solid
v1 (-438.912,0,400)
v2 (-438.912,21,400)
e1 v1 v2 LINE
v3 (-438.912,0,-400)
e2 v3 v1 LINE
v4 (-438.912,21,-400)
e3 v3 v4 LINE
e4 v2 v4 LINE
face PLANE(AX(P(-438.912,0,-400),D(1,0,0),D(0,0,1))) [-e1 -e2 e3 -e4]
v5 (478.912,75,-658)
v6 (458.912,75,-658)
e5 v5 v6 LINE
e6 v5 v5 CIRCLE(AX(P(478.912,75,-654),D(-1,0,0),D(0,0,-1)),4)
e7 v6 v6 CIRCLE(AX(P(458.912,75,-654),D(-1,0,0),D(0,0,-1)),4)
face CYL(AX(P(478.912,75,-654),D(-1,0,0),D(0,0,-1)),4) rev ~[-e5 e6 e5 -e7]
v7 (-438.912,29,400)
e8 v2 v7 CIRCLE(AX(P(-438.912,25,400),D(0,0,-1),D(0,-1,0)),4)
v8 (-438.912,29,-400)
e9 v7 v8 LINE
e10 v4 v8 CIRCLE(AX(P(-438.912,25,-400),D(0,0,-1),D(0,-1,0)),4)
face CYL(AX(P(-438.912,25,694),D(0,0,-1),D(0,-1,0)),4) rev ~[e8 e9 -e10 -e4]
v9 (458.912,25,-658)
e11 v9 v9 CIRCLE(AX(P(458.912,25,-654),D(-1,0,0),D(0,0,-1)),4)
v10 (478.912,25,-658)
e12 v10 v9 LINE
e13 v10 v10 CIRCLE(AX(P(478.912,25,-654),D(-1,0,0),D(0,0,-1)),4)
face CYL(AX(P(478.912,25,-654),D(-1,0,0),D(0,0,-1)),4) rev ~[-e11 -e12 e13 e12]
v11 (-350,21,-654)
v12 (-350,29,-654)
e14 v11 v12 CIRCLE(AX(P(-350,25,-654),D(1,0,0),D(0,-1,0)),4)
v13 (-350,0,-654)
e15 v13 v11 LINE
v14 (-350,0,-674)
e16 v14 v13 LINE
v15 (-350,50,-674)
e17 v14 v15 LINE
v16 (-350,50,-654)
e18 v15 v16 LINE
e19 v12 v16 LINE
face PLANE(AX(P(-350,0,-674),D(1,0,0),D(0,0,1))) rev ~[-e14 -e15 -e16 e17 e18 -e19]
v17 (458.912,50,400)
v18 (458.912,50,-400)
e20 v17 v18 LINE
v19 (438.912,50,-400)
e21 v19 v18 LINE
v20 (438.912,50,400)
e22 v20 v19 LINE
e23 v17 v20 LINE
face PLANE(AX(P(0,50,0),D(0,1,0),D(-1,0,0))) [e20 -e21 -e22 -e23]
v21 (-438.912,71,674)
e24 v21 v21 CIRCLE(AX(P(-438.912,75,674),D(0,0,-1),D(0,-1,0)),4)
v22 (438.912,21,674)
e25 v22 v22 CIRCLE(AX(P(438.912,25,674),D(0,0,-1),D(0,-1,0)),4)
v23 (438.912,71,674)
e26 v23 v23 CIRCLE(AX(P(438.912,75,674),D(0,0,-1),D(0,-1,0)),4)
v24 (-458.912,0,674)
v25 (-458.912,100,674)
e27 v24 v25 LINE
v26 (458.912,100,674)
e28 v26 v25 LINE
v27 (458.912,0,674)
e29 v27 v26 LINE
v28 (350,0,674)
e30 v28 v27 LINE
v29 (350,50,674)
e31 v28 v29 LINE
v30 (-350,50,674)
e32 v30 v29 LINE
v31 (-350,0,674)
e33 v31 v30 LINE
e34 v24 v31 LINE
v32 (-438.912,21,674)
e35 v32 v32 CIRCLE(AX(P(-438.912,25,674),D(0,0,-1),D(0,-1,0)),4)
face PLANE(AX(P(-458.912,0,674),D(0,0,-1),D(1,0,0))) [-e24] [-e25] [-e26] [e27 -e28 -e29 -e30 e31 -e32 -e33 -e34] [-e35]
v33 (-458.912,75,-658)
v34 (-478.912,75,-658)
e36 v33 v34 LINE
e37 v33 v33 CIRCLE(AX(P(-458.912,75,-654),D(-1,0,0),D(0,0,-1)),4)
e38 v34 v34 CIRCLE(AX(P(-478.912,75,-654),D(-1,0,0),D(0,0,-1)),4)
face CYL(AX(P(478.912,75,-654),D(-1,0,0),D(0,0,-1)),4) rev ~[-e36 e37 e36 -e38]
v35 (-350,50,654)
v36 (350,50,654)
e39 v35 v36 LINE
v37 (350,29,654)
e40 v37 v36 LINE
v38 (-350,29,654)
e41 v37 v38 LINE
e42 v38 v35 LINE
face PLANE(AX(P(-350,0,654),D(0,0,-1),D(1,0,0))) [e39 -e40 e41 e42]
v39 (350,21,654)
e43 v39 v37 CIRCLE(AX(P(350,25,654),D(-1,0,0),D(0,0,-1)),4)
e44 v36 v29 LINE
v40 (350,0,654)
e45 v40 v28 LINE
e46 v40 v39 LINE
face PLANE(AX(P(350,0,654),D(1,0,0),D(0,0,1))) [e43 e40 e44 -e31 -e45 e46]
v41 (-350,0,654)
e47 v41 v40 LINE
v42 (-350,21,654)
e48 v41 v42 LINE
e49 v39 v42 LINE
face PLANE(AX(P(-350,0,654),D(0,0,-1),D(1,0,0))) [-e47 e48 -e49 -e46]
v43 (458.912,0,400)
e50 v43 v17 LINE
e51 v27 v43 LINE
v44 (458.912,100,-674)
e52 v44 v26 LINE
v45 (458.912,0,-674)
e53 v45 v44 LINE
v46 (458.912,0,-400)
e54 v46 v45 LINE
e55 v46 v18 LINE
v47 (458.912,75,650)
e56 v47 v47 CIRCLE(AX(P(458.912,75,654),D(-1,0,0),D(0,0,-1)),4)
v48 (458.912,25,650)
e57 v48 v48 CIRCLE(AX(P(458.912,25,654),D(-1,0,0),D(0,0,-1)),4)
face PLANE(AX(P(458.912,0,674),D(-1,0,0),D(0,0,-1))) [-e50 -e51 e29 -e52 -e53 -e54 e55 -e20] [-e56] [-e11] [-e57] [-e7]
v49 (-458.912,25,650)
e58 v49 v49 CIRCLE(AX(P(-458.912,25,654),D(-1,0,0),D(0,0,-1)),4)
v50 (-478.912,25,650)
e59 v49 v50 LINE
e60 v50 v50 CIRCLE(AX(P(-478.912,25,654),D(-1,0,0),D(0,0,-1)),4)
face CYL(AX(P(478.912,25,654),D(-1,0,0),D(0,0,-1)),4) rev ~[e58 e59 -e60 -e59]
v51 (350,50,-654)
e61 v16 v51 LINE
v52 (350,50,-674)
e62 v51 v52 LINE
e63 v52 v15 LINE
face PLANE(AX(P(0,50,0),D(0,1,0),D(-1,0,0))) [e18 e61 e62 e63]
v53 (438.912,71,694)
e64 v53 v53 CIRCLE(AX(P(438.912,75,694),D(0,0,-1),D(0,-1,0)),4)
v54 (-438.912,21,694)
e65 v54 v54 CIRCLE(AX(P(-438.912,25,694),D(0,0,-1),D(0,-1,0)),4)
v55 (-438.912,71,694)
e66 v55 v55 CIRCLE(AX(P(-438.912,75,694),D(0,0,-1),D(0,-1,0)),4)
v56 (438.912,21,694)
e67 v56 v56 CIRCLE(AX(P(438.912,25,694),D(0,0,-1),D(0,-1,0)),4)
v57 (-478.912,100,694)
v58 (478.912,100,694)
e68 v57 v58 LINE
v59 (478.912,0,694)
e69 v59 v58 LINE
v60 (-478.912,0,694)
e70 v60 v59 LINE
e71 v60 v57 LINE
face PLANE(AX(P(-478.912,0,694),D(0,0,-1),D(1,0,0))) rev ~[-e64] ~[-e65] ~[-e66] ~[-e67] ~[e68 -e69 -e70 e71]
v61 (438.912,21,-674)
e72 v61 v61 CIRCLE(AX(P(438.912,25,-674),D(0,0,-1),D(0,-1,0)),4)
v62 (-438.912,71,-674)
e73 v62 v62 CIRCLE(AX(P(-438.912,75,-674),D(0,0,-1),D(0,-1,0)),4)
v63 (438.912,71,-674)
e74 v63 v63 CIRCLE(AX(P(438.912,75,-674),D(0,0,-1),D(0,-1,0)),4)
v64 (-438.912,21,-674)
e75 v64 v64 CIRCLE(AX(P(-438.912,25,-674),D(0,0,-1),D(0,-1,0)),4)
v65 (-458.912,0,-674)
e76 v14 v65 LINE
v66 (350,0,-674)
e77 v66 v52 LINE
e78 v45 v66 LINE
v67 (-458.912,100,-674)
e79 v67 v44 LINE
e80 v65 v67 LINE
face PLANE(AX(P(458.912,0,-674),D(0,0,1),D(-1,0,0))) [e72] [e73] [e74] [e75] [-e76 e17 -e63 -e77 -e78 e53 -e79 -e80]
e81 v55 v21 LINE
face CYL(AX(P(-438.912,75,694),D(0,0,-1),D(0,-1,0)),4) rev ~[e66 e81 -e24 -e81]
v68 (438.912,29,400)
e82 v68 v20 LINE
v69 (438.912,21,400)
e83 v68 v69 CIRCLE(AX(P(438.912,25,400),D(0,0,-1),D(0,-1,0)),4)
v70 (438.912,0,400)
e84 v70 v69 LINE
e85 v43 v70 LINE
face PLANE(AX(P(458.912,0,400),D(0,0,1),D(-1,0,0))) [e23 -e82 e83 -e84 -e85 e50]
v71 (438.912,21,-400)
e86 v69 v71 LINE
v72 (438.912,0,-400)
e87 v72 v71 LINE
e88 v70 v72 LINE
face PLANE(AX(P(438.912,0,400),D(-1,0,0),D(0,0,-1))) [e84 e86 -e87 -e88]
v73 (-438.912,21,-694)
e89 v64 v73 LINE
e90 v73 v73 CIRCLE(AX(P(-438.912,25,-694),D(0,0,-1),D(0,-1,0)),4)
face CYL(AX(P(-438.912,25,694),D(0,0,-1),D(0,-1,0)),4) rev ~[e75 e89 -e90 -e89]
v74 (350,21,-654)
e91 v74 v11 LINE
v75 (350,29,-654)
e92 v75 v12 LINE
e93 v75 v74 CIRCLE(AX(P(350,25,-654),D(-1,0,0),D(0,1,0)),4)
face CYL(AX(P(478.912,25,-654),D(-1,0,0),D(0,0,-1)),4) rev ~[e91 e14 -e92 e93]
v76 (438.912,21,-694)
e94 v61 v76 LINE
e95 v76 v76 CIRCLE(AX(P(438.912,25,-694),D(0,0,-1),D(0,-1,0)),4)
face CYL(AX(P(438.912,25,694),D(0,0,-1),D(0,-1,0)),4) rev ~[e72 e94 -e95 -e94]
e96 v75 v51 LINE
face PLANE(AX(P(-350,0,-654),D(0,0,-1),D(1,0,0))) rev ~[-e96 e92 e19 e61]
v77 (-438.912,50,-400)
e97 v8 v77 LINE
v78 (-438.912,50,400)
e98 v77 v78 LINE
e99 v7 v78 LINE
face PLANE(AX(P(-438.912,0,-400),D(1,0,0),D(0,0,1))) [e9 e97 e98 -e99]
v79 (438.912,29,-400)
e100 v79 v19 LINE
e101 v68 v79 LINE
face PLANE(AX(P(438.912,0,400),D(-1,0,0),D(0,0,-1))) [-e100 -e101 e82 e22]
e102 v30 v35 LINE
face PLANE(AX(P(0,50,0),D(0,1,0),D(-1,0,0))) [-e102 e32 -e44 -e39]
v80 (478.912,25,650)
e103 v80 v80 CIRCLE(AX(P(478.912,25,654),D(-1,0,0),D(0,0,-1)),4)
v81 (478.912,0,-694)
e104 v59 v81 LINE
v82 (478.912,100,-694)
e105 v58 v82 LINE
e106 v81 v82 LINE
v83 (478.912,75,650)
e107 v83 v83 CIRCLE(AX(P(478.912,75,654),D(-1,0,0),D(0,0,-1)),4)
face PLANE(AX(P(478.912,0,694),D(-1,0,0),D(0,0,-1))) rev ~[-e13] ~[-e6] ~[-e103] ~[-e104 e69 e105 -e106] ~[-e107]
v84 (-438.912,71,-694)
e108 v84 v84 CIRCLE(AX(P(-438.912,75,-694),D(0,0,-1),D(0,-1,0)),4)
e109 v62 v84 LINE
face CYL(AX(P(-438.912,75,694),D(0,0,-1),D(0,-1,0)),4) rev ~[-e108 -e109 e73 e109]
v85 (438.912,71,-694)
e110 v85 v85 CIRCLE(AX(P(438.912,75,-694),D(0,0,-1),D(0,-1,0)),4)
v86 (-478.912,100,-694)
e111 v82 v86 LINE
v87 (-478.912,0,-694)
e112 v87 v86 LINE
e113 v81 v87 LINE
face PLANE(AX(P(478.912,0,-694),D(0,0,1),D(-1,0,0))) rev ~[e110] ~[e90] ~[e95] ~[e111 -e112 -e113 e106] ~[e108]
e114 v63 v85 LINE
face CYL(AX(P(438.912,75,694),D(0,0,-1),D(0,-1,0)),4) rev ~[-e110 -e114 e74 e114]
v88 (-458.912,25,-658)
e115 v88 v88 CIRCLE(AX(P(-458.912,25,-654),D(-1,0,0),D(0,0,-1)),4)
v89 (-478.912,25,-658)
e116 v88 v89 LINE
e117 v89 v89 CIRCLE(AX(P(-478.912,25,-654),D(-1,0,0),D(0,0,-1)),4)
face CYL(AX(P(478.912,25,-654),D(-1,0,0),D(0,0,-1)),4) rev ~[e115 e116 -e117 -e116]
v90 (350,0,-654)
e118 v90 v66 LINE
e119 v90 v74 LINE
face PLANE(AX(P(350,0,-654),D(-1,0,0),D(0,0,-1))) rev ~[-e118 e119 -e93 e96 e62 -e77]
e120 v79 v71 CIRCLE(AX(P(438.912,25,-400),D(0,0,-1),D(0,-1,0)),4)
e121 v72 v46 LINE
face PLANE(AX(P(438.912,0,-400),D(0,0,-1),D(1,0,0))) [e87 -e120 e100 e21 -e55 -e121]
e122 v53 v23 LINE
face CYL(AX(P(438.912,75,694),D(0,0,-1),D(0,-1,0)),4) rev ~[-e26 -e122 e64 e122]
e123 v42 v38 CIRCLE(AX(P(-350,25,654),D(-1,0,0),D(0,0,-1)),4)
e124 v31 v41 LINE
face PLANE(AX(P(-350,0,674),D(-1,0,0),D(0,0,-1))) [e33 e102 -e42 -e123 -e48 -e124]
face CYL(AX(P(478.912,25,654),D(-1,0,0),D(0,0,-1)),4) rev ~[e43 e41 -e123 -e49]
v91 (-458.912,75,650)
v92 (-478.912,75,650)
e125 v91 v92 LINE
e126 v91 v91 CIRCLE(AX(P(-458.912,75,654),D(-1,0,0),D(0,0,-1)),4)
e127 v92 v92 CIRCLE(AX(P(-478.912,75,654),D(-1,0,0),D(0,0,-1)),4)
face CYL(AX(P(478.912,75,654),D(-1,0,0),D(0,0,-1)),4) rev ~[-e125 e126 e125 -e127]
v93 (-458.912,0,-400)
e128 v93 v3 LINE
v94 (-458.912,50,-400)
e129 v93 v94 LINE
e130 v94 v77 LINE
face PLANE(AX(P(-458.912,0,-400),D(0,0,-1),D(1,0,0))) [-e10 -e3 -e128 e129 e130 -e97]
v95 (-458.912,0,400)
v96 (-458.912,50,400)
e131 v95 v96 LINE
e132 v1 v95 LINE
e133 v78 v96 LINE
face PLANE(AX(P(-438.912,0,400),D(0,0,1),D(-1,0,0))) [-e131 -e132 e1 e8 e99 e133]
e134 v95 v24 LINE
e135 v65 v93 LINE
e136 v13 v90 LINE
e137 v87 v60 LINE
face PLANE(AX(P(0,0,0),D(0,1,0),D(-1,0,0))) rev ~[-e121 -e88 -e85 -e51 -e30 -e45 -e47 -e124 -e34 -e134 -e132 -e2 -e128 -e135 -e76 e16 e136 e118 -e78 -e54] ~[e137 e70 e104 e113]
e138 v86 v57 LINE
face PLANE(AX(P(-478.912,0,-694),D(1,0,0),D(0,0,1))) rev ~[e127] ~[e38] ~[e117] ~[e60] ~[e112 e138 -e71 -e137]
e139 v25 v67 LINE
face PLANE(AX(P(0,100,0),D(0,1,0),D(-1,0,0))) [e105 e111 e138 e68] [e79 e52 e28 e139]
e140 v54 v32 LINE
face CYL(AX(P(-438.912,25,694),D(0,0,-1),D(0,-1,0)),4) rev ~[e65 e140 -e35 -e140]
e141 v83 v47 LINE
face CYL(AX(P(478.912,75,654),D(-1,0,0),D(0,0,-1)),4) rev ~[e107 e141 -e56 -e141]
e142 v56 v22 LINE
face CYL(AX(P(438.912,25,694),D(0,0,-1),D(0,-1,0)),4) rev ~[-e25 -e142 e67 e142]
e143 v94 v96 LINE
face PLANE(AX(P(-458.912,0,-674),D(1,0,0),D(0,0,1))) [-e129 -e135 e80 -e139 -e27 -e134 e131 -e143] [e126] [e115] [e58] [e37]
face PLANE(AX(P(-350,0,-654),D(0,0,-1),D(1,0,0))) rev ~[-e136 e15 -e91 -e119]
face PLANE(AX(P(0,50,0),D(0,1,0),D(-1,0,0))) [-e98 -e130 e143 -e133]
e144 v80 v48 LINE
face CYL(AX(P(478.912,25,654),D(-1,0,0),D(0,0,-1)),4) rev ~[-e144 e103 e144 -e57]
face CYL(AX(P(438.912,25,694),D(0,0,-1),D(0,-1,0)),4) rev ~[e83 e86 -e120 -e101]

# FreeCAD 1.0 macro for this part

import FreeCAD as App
import Part
import Sketcher

V = App.Vector
Q = App.Units.Quantity


def add_polygon(sketch, points):
    """Adds a closed chain of lines whose ends are joined by coincident constraints."""
    first, n = sketch.GeometryCount, len(points)
    for a, b in zip(points, points[1:] + points[:1]):
        sketch.addGeometry(Part.LineSegment(App.Vector(*a, 0), App.Vector(*b, 0)), False)
    for i in range(n):
        sketch.addConstraint(Sketcher.Constraint("Coincident", first + i, 2, first + (i + 1) % n, 1))

doc = App.newDocument("Part")
body = doc.addObject("PartDesign::Body", "Body")
body.AllowCompound = True

# Sketch on XZ plane
sketch1 = body.newObject("Sketcher::SketchObject", "Sketch")
sketch1.AttachmentSupport = (doc.getObject("XZ_Plane"), [""])
sketch1.MapMode = "FlatFace"
add_polygon(sketch1, [(-350, 654), (-350, 674), (350, 674), (350, 654)])  # lines 0-3
add_polygon(sketch1, [(-458.912, -400), (-458.912, 400), (-438.912, 400), (-438.912, -400)])  # lines 4-7
add_polygon(sketch1, [(438.912, 400), (458.912, 400), (458.912, -400), (438.912, -400)])  # lines 8-11
add_polygon(sketch1, [(350, -674), (-350, -674), (-350, -654), (350, -654)])  # lines 12-15
sketch1.addConstraint(Sketcher.Constraint("Vertical", 0))
sketch1.addConstraint(Sketcher.Constraint("Horizontal", 1))
sketch1.addConstraint(Sketcher.Constraint("Vertical", 2))
sketch1.addConstraint(Sketcher.Constraint("Horizontal", 3))
sketch1.addConstraint(Sketcher.Constraint("Vertical", 4))
sketch1.addConstraint(Sketcher.Constraint("Horizontal", 5))
sketch1.addConstraint(Sketcher.Constraint("Vertical", 6))
sketch1.addConstraint(Sketcher.Constraint("Horizontal", 7))
sketch1.addConstraint(Sketcher.Constraint("Horizontal", 8))
sketch1.addConstraint(Sketcher.Constraint("Vertical", 9))
sketch1.addConstraint(Sketcher.Constraint("Horizontal", 10))
sketch1.addConstraint(Sketcher.Constraint("Vertical", 11))
sketch1.addConstraint(Sketcher.Constraint("Horizontal", 12))
sketch1.addConstraint(Sketcher.Constraint("Vertical", 13))
sketch1.addConstraint(Sketcher.Constraint("Horizontal", 14))
sketch1.addConstraint(Sketcher.Constraint("Vertical", 15))
sketch1.addConstraint(Sketcher.Constraint("Symmetric", 7, 2, 8, 2, -1, 1))
sketch1.addConstraint(Sketcher.Constraint("Symmetric", 5, 2, 10, 2, -1, 1))
sketch1.addConstraint(Sketcher.Constraint("Symmetric", 1, 2, 12, 2, -1, 1))
sketch1.addConstraint(Sketcher.Constraint("Symmetric", 3, 2, 14, 2, -1, 1))
sketch1.addConstraint(Sketcher.Constraint("Horizontal", 5, 2, 8, 2))
sketch1.addConstraint(Sketcher.Constraint("Vertical", 3, 2, 12, 2))
sketch1.addConstraint(Sketcher.Constraint("Equal", 10, 0))
sketch1.addConstraint(Sketcher.Constraint("DistanceX", 1, 1, 1, 2, Q("700 mm")))
sketch1.addConstraint(Sketcher.Constraint("DistanceX", 5, 1, 5, 2, Q("20 mm")))
sketch1.addConstraint(Sketcher.Constraint("DistanceY", 4, 1, 4, 2, Q("800 mm")))
sketch1.addConstraint(Sketcher.Constraint("DistanceY", -1, 1, 0, 2, Q("674 mm")))
sketch1.addConstraint(Sketcher.Constraint("DistanceX", 7, 2, 9, 2, Q("917.824 mm")))
pad1 = body.newObject("PartDesign::Pad", "Pad")
pad1.Profile = sketch1
pad1.Length = 50
pad1.Reversed = True

# Sketch on XZ plane
sketch2 = body.newObject("Sketcher::SketchObject", "Sketch001")
sketch2.AttachmentSupport = (doc.getObject("XZ_Plane"), [""])
sketch2.MapMode = "FlatFace"
add_polygon(sketch2, [(-478.912, -694), (-478.912, 694), (478.912, 694), (478.912, -694)])  # lines 0-3
add_polygon(sketch2, [(458.912, 674), (-458.912, 674), (-458.912, -674), (458.912, -674)])  # lines 4-7
sketch2.addConstraint(Sketcher.Constraint("Vertical", 0))
sketch2.addConstraint(Sketcher.Constraint("Horizontal", 1))
sketch2.addConstraint(Sketcher.Constraint("Vertical", 2))
sketch2.addConstraint(Sketcher.Constraint("Horizontal", 3))
sketch2.addConstraint(Sketcher.Constraint("Horizontal", 4))
sketch2.addConstraint(Sketcher.Constraint("Vertical", 5))
sketch2.addConstraint(Sketcher.Constraint("Horizontal", 6))
sketch2.addConstraint(Sketcher.Constraint("Vertical", 7))
sketch2.addConstraint(Sketcher.Constraint("Symmetric", 0, 2, 2, 2, -1, 1))
sketch2.addConstraint(Sketcher.Constraint("Symmetric", 4, 2, 6, 2, -1, 1))
sketch2.addConstraint(Sketcher.Constraint("DistanceY", 0, 1, 0, 2, Q("1388 mm")))
sketch2.addConstraint(Sketcher.Constraint("DistanceY", 5, 2, 5, 1, Q("1348 mm")))
sketch2.addConstraint(Sketcher.Constraint("DistanceX", 0, 2, 4, 2, Q("20 mm")))
sketch2.addConstraint(Sketcher.Constraint("DistanceX", 1, 1, 1, 2, Q("957.824 mm")))
pad2 = body.newObject("PartDesign::Pad", "Pad001")
pad2.Profile = sketch2
pad2.Length = 100
pad2.Reversed = True

# Sketch on YZ plane
sketch3 = body.newObject("Sketcher::SketchObject", "Sketch002")
sketch3.AttachmentSupport = (doc.getObject("YZ_Plane"), [""])
sketch3.MapMode = "FlatFace"
sketch3.AttachmentOffset = App.Placement(V(0, 0, 478.912), App.Rotation())
sketch3.addGeometry(Part.Circle(V(75, 654, 0), V(0, 0, 1), 4), False)
sketch3.addConstraint(Sketcher.Constraint("Diameter", 0, Q("8 mm")))
sketch3.addConstraint(Sketcher.Constraint("DistanceX", -1, 1, 0, 3, Q("75 mm")))
sketch3.addConstraint(Sketcher.Constraint("DistanceY", -1, 1, 0, 3, Q("654 mm")))
doc.recompute()
hole = body.newObject("PartDesign::Hole", "Hole")
hole.Profile = sketch3
hole.ThreadType = "None"
hole.Diameter = 8
hole.DepthType = "ThroughAll"

# Sketch on YZ plane
sketch4 = body.newObject("Sketcher::SketchObject", "Sketch003")
sketch4.AttachmentSupport = (doc.getObject("YZ_Plane"), [""])
sketch4.MapMode = "FlatFace"
sketch4.AttachmentOffset = App.Placement(V(0, 0, 478.912), App.Rotation())
sketch4.addGeometry(Part.Circle(V(25, 654, 0), V(0, 0, 1), 4), False)
sketch4.addConstraint(Sketcher.Constraint("Diameter", 0, Q("8 mm")))
sketch4.addConstraint(Sketcher.Constraint("DistanceX", -1, 1, 0, 3, Q("25 mm")))
sketch4.addConstraint(Sketcher.Constraint("DistanceY", -1, 1, 0, 3, Q("654 mm")))
doc.recompute()
hole2 = body.newObject("PartDesign::Hole", "Hole001")
hole2.Profile = sketch4
hole2.ThreadType = "None"
hole2.Diameter = 8
hole2.DepthType = "ThroughAll"

# Sketch on YZ plane
sketch5 = body.newObject("Sketcher::SketchObject", "Sketch004")
sketch5.AttachmentSupport = (doc.getObject("YZ_Plane"), [""])
sketch5.MapMode = "FlatFace"
sketch5.AttachmentOffset = App.Placement(V(0, 0, 478.912), App.Rotation())
sketch5.addGeometry(Part.Circle(V(75, -654, 0), V(0, 0, 1), 4), False)
sketch5.addConstraint(Sketcher.Constraint("Diameter", 0, Q("8 mm")))
sketch5.addConstraint(Sketcher.Constraint("DistanceX", -1, 1, 0, 3, Q("75 mm")))
sketch5.addConstraint(Sketcher.Constraint("DistanceY", 0, 3, -1, 1, Q("654 mm")))
doc.recompute()
hole3 = body.newObject("PartDesign::Hole", "Hole002")
hole3.Profile = sketch5
hole3.ThreadType = "None"
hole3.Diameter = 8
hole3.DepthType = "ThroughAll"

# Sketch on YZ plane
sketch6 = body.newObject("Sketcher::SketchObject", "Sketch005")
sketch6.AttachmentSupport = (doc.getObject("YZ_Plane"), [""])
sketch6.MapMode = "FlatFace"
sketch6.AttachmentOffset = App.Placement(V(0, 0, 478.912), App.Rotation())
sketch6.addGeometry(Part.Circle(V(25, -654, 0), V(0, 0, 1), 4), False)
sketch6.addConstraint(Sketcher.Constraint("Diameter", 0, Q("8 mm")))
sketch6.addConstraint(Sketcher.Constraint("DistanceX", -1, 1, 0, 3, Q("25 mm")))
sketch6.addConstraint(Sketcher.Constraint("DistanceY", 0, 3, -1, 1, Q("654 mm")))
doc.recompute()
hole4 = body.newObject("PartDesign::Hole", "Hole003")
hole4.Profile = sketch6
hole4.ThreadType = "None"
hole4.Diameter = 8
hole4.DepthType = "ThroughAll"

# Sketch on XY plane
sketch7 = body.newObject("Sketcher::SketchObject", "Sketch006")
sketch7.AttachmentSupport = (doc.getObject("XY_Plane"), [""])
sketch7.MapMode = "FlatFace"
sketch7.AttachmentOffset = App.Placement(V(0, 0, 694), App.Rotation())
sketch7.addGeometry(Part.Circle(V(438.912, 75, 0), V(0, 0, 1), 4), False)
sketch7.addGeometry(Part.Circle(V(438.912, 25, 0), V(0, 0, 1), 4), False)
sketch7.addConstraint(Sketcher.Constraint("Equal", 0, 1))
sketch7.addConstraint(Sketcher.Constraint("Vertical", 0, 3, 1, 3))
sketch7.addConstraint(Sketcher.Constraint("Diameter", 0, Q("8 mm")))
sketch7.addConstraint(Sketcher.Constraint("DistanceY", -1, 1, 0, 3, Q("75 mm")))
sketch7.addConstraint(Sketcher.Constraint("DistanceY", -1, 1, 1, 3, Q("25 mm")))
sketch7.addConstraint(Sketcher.Constraint("DistanceX", -1, 1, 0, 3, Q("438.912 mm")))
doc.recompute()
hole5 = body.newObject("PartDesign::Hole", "Hole004")
hole5.Profile = sketch7
hole5.ThreadType = "None"
hole5.Diameter = 8
hole5.DepthType = "ThroughAll"

# Sketch on XY plane
sketch8 = body.newObject("Sketcher::SketchObject", "Sketch007")
sketch8.AttachmentSupport = (doc.getObject("XY_Plane"), [""])
sketch8.MapMode = "FlatFace"
sketch8.AttachmentOffset = App.Placement(V(0, 0, 694), App.Rotation())
sketch8.addGeometry(Part.Circle(V(-438.912, 75, 0), V(0, 0, 1), 4), False)
sketch8.addConstraint(Sketcher.Constraint("Diameter", 0, Q("8 mm")))
sketch8.addConstraint(Sketcher.Constraint("DistanceY", -1, 1, 0, 3, Q("75 mm")))
sketch8.addConstraint(Sketcher.Constraint("DistanceX", 0, 3, -1, 1, Q("438.912 mm")))
doc.recompute()
hole6 = body.newObject("PartDesign::Hole", "Hole005")
hole6.Profile = sketch8
hole6.ThreadType = "None"
hole6.Diameter = 8
hole6.DepthType = "ThroughAll"

# Sketch on XY plane
sketch9 = body.newObject("Sketcher::SketchObject", "Sketch008")
sketch9.AttachmentSupport = (doc.getObject("XY_Plane"), [""])
sketch9.MapMode = "FlatFace"
sketch9.AttachmentOffset = App.Placement(V(0, 0, 694), App.Rotation())
sketch9.addGeometry(Part.Circle(V(-438.912, 25, 0), V(0, 0, 1), 4), False)
sketch9.addConstraint(Sketcher.Constraint("Diameter", 0, Q("8 mm")))
sketch9.addConstraint(Sketcher.Constraint("DistanceY", -1, 1, 0, 3, Q("25 mm")))
sketch9.addConstraint(Sketcher.Constraint("DistanceX", 0, 3, -1, 1, Q("438.912 mm")))
doc.recompute()
hole7 = body.newObject("PartDesign::Hole", "Hole006")
hole7.Profile = sketch9
hole7.ThreadType = "None"
hole7.Diameter = 8
hole7.DepthType = "ThroughAll"

doc.recompute()
